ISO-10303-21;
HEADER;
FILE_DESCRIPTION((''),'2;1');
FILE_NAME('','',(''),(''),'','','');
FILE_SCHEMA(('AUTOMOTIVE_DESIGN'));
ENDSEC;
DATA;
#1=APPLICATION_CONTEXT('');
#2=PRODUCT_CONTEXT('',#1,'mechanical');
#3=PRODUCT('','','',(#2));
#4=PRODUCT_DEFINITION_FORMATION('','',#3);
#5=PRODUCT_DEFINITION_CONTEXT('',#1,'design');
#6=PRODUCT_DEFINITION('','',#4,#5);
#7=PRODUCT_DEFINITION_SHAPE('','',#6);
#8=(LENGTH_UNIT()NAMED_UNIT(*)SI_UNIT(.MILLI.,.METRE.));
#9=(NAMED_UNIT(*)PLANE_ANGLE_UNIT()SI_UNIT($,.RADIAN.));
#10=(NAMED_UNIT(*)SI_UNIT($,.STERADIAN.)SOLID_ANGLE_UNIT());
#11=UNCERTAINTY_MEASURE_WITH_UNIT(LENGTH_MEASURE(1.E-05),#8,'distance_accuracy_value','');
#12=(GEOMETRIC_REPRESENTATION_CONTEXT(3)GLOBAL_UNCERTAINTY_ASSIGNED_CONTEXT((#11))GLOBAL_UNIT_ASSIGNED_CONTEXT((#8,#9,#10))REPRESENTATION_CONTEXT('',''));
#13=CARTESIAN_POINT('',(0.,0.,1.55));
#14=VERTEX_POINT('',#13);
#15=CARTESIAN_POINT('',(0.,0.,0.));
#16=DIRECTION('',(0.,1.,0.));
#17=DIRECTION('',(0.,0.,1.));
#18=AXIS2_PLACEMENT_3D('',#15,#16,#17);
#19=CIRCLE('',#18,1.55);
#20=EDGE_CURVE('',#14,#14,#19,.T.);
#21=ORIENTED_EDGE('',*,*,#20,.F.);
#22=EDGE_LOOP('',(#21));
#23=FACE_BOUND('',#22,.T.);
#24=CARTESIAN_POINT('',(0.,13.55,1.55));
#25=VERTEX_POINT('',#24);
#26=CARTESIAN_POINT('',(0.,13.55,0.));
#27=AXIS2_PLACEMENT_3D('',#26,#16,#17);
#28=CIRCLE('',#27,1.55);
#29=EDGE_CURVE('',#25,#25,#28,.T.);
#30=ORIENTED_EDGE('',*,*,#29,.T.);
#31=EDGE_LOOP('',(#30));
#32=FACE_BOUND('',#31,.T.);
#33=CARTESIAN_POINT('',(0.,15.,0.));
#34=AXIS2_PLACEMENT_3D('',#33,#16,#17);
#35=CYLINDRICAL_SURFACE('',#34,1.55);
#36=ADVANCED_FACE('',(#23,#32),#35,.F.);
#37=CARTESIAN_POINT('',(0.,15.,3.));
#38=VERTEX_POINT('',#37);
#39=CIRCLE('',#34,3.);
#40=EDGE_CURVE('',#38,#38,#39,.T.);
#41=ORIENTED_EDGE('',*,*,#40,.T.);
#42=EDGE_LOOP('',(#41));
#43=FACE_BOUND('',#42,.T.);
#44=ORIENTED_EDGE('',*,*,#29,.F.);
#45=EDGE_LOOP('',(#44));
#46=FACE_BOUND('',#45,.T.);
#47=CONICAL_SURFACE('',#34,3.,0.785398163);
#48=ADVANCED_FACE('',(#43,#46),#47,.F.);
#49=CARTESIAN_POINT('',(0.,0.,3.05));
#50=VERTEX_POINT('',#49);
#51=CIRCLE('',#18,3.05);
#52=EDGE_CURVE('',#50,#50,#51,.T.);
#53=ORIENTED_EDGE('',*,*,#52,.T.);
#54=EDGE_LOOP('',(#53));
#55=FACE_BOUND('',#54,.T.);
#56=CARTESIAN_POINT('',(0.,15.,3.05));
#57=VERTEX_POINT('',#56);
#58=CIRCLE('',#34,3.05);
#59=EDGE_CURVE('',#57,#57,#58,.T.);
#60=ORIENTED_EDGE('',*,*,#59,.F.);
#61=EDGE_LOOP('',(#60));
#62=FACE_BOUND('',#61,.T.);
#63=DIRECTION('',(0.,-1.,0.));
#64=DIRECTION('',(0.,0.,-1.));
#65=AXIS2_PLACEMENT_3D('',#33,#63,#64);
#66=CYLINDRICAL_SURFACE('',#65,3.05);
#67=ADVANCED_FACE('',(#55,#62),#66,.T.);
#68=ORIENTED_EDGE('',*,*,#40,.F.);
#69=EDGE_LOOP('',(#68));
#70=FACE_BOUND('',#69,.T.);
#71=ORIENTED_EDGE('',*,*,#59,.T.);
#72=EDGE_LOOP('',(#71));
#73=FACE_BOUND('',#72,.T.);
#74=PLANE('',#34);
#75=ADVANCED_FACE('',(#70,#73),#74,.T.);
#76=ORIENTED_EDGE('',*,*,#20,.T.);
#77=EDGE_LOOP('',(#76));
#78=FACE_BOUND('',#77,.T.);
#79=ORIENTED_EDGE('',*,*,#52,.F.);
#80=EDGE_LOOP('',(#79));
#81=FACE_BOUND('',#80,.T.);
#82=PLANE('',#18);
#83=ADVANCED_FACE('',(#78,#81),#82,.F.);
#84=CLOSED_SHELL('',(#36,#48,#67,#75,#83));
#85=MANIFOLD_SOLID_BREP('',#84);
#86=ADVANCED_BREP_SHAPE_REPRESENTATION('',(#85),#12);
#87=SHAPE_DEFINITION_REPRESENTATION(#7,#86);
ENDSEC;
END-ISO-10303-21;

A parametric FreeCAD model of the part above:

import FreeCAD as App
import Part
import Sketcher
Q = App.Units.Quantity

doc = App.newDocument("Part")
params = doc.addObject("Spreadsheet::Sheet", "Params")
for row, (alias, value) in enumerate([
    ("sketch1_diameter", "6.1 mm"),
    ("pad1_length", "15 mm"),
    ("sketch2_diameter", "3.1 mm"),
    ("hole_diameter", "3.1 mm"),
    ("hole_depth", "54.068666 mm"),
    ("hole_csink_diameter", "6 mm"),
], start=1):
    params.set(f"A{row}", alias)
    params.set(f"B{row}", "=" + value)
    params.setAlias(f"B{row}", alias)

body = doc.addObject("PartDesign::Body", "Body")

sketch1 = body.newObject("Sketcher::SketchObject", "Sketch")
sketch1.AttachmentSupport = (doc.getObject("XZ_Plane"), [""])
sketch1.MapMode = "FlatFace"
sketch1.addGeometry(Part.Circle(App.Vector(0, 0, 0), App.Vector(0, 0, 1), 3), False)
sketch1.addConstraint(Sketcher.Constraint("Coincident", 0, 3, -1, 1))
sketch1.addConstraint(Sketcher.Constraint("Diameter", 0, Q("6.1 mm")))
sketch1.setExpression("Constraints[1]", "Params.sketch1_diameter")
pad1 = body.newObject("PartDesign::Pad", "Pad")
pad1.Profile = sketch1
pad1.setExpression("Length", "Params.pad1_length")
pad1.Reversed = True

sketch2 = body.newObject("Sketcher::SketchObject", "Sketch001")
sketch2.AttachmentSupport = (doc.getObject("XZ_Plane"), [""])
sketch2.MapMode = "FlatFace"
sketch2.AttachmentOffset = App.Placement(App.Vector(0, 0, -15), App.Rotation())
sketch2.addGeometry(Part.Circle(App.Vector(0, 0, 0), App.Vector(0, 0, 1), 1.6), False)
sketch2.addConstraint(Sketcher.Constraint("Coincident", 0, 3, -1, 1))
sketch2.addConstraint(Sketcher.Constraint("Diameter", 0, Q("3.1 mm")))
sketch2.setExpression("Constraints[1]", "Params.sketch2_diameter")
doc.recompute()
hole = body.newObject("PartDesign::Hole", "Hole")
hole.Profile = sketch2
hole.ThreadType = "None"
hole.setExpression("Diameter", "Params.hole_diameter")
hole.DepthType = "Dimension"
hole.setExpression("Depth", "Params.hole_depth")
hole.DrillPoint = "Angled"
hole.DrillPointAngle = 118
hole.HoleCutType = "Countersink"
hole.setExpression("HoleCutDiameter", "Params.hole_csink_diameter")
hole.HoleCutCountersinkAngle = 90
hole.Reversed = True

doc.recompute()
